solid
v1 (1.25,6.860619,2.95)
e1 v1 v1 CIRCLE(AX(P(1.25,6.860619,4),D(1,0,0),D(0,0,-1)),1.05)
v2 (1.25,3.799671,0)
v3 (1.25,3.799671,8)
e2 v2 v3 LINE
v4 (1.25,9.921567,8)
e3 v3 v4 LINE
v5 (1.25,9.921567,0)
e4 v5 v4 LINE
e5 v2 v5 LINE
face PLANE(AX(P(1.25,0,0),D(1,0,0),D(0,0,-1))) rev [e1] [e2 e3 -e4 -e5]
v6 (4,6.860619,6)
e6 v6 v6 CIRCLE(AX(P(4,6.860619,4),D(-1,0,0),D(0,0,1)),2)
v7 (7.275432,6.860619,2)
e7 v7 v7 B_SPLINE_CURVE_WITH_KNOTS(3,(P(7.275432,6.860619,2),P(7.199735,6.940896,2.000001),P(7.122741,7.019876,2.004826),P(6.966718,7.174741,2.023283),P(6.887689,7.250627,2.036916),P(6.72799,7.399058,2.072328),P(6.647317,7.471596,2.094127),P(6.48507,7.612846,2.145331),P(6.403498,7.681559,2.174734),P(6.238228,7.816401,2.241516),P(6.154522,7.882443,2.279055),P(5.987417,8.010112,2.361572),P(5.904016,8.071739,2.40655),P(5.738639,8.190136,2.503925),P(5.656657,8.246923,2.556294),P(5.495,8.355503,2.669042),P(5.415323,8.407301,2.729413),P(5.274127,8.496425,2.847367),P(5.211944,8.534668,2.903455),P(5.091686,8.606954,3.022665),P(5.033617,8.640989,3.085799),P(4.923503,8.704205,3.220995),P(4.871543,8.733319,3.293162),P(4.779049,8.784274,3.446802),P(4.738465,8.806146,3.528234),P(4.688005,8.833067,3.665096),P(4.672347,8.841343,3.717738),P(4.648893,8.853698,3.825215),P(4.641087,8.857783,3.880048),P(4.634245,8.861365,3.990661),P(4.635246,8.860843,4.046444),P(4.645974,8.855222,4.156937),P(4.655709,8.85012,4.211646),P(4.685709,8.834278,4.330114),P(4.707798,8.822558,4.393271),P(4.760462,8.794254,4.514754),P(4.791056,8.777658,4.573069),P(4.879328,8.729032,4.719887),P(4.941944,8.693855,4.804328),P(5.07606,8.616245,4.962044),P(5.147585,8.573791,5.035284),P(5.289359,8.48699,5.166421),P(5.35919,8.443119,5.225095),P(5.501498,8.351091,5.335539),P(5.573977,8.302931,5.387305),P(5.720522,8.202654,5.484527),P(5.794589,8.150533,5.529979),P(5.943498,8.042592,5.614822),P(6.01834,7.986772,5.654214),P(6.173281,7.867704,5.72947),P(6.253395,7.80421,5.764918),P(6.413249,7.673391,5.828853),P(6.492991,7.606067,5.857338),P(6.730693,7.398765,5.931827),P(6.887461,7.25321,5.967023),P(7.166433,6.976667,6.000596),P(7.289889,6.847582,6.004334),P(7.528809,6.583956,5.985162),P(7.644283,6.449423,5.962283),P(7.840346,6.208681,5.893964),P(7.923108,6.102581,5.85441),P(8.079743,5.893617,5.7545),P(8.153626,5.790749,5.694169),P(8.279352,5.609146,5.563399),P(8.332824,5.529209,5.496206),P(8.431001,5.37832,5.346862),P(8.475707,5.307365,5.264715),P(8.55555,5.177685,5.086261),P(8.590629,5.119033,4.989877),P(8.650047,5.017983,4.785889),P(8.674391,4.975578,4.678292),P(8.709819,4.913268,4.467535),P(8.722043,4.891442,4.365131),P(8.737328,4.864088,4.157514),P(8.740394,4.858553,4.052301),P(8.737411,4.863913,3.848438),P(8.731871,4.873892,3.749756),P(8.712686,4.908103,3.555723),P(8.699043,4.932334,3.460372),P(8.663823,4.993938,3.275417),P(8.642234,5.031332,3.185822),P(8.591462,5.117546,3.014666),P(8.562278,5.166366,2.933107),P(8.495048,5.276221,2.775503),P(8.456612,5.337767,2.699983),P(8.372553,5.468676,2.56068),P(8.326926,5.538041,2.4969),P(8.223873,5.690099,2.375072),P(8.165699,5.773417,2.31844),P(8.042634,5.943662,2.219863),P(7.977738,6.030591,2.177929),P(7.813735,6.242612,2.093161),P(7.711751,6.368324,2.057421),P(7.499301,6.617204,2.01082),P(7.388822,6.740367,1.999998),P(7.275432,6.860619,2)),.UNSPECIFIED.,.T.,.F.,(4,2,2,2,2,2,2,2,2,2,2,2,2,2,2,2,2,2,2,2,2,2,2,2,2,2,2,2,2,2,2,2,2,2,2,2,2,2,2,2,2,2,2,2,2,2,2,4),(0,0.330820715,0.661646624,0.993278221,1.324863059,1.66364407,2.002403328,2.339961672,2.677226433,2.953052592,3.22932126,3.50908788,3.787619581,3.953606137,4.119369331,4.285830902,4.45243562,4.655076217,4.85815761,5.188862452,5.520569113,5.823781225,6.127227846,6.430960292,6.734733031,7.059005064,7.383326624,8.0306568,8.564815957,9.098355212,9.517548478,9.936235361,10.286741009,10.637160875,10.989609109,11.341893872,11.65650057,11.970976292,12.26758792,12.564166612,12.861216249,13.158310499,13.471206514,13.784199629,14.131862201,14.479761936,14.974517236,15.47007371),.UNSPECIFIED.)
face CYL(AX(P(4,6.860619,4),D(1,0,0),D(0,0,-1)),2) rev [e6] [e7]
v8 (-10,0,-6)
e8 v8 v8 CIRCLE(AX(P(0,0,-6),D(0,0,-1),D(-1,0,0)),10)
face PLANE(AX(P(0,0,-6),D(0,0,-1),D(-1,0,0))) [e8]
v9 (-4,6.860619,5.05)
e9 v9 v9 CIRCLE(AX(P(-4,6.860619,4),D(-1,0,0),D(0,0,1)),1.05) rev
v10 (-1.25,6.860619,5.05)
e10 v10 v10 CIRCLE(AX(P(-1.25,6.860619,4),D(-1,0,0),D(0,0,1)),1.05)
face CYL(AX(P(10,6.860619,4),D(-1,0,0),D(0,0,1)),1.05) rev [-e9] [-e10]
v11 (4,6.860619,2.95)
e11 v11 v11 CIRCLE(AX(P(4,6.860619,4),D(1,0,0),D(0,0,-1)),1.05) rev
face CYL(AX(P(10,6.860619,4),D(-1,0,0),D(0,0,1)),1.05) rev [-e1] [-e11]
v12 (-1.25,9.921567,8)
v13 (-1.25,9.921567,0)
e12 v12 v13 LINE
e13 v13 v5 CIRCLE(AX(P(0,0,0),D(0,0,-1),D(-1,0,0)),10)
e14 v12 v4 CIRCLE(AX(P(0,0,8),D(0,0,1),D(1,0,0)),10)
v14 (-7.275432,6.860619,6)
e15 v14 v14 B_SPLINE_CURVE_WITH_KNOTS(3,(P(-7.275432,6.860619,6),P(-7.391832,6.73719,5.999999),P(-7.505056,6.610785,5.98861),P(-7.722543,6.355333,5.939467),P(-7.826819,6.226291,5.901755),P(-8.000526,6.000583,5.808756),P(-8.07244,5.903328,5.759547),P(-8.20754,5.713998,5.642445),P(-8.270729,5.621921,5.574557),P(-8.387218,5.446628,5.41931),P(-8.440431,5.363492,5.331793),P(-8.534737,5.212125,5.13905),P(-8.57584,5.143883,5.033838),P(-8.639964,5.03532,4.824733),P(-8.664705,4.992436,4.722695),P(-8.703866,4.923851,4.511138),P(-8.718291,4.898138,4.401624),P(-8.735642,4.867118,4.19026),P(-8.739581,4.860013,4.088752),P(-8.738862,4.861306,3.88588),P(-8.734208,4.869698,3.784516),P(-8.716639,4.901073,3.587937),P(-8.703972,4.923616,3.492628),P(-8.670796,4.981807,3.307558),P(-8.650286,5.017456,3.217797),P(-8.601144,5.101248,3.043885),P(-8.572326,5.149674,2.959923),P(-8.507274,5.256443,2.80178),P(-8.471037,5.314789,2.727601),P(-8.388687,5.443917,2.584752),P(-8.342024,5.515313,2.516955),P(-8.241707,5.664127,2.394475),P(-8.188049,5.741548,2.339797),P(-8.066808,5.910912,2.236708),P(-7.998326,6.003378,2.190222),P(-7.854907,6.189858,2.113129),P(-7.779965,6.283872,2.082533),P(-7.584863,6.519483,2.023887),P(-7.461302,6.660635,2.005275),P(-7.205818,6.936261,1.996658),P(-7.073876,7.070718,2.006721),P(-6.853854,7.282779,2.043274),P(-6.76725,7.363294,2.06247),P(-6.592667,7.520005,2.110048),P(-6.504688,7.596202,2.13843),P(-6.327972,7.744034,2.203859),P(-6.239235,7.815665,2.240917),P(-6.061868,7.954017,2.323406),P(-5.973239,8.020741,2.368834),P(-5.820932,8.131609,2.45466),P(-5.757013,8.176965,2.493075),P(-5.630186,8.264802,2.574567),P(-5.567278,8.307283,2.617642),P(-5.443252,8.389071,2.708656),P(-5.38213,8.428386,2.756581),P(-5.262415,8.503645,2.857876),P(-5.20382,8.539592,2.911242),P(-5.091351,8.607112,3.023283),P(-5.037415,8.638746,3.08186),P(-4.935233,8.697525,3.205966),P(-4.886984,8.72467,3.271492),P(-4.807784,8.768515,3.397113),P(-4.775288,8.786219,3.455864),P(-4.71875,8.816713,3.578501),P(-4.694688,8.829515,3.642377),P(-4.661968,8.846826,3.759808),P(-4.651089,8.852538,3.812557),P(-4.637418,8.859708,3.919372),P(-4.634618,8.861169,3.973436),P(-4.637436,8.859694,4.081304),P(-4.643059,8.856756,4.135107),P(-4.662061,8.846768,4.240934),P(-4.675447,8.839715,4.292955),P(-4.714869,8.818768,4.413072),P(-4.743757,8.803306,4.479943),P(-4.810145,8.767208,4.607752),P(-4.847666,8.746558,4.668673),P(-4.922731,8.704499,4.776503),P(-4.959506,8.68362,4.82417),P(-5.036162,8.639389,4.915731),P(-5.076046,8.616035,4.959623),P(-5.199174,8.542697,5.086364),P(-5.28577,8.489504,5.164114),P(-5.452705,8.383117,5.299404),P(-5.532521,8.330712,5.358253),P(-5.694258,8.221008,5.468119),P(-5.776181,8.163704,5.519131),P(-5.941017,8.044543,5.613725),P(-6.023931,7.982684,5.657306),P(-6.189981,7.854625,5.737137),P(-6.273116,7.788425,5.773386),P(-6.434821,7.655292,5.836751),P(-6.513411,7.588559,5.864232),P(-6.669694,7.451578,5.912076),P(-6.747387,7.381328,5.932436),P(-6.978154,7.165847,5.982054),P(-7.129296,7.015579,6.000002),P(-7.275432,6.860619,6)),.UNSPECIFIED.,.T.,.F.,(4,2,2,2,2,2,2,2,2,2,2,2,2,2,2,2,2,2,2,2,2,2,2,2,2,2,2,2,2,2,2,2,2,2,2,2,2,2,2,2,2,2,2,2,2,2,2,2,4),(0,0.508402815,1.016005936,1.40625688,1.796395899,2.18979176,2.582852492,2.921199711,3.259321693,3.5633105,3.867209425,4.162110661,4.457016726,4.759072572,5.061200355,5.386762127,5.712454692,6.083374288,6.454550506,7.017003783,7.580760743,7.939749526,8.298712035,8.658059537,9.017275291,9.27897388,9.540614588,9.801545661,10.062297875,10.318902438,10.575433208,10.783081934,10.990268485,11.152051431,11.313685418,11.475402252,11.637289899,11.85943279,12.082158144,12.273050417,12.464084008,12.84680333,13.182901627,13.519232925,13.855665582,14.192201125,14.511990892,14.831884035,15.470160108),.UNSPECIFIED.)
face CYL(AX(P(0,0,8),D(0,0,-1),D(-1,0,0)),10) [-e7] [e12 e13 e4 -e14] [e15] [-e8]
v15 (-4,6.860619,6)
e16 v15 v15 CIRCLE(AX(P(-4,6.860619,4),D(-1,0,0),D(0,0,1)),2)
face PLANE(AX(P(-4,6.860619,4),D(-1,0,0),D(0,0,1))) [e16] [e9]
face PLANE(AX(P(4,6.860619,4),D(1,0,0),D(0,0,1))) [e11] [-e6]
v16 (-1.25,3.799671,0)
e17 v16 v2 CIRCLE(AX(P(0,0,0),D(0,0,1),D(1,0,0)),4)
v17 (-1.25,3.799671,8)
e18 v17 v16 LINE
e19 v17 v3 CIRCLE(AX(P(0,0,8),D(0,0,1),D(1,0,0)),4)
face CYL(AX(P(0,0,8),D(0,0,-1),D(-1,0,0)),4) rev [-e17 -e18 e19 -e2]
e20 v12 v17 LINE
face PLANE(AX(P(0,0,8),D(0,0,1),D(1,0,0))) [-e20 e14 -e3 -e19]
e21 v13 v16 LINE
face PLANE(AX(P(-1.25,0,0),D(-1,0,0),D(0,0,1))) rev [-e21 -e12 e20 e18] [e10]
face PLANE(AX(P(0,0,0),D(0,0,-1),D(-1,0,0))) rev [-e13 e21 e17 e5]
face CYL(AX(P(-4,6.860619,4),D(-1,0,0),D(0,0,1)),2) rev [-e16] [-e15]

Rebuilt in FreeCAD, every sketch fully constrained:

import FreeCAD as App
import Part
import Sketcher
Q = App.Units.Quantity

doc = App.newDocument("Part")
body = doc.addObject("PartDesign::Body", "Body")

# Sketch on XY plane
sketch1 = body.newObject("Sketcher::SketchObject", "Sketch")
sketch1.AttachmentSupport = (doc.getObject("XY_Plane"), [""])
sketch1.MapMode = "FlatFace"
sketch1.addGeometry([
    Part.Circle(App.Vector(0, 0, 0), App.Vector(0, 0, 1), 10),
    Part.Circle(App.Vector(0, 0, 0), App.Vector(0, 0, 1), 4),
], False)
sketch1.addConstraint([
    Sketcher.Constraint("Coincident", 0, 3, -1, 1),
    Sketcher.Constraint("Coincident", 1, 3, -1, 1),
    Sketcher.Constraint("Diameter", 0, Q("20 mm")),
    Sketcher.Constraint("Diameter", 1, Q("8 mm")),
])
pad1 = body.newObject("PartDesign::Pad", "Pad")
pad1.Profile = sketch1
pad1.Length = 8

# Sketch on XY plane
sketch2 = body.newObject("Sketcher::SketchObject", "Sketch001")
sketch2.AttachmentSupport = (doc.getObject("XY_Plane"), [""])
sketch2.MapMode = "FlatFace"
sketch2.AttachmentOffset = App.Placement(App.Vector(0, 0, 8), App.Rotation())
sketch2.addGeometry([
    Part.LineSegment(App.Vector(-1.2, 11.1, 0), App.Vector(-1.2, 0, 0)),
    Part.LineSegment(App.Vector(-1.2, 0, 0), App.Vector(1.2, 0, 0)),
    Part.LineSegment(App.Vector(1.2, 0, 0), App.Vector(1.2, 11.1, 0)),
    Part.LineSegment(App.Vector(1.2, 11.1, 0), App.Vector(-1.2, 11.1, 0)),
], False)
sketch2.addConstraint([
    Sketcher.Constraint("Coincident", 0, 2, 1, 1),
    Sketcher.Constraint("Coincident", 1, 2, 2, 1),
    Sketcher.Constraint("Coincident", 2, 2, 3, 1),
    Sketcher.Constraint("Coincident", 3, 2, 0, 1),
    Sketcher.Constraint("Vertical", 0),
    Sketcher.Constraint("Horizontal", 1),
    Sketcher.Constraint("Vertical", 2),
    Sketcher.Constraint("Horizontal", 3),
    Sketcher.Constraint("Symmetric", 0, 2, 1, 2, -1, 1),
    Sketcher.Constraint("DistanceX", 1, 1, 1, 2, Q("2.5 mm")),
    Sketcher.Constraint("DistanceY", 0, 2, 0, 1, Q("11.075472 mm")),
])
pocket1 = body.newObject("PartDesign::Pocket", "Pocket")
pocket1.Profile = sketch2
pocket1.Type = "ThroughAll"

# Sketch on YZ plane
sketch3 = body.newObject("Sketcher::SketchObject", "Sketch002")
sketch3.AttachmentSupport = (doc.getObject("YZ_Plane"), [""])
sketch3.MapMode = "FlatFace"
sketch3.AttachmentOffset = App.Placement(App.Vector(0, 0, -10), App.Rotation())
sketch3.addGeometry(Part.Circle(App.Vector(6.9, 4, 0), App.Vector(0, 0, 1), 1.1), False)
sketch3.addConstraint([
    Sketcher.Constraint("Diameter", 0, Q("2.1 mm")),
    Sketcher.Constraint("DistanceY", -1, 1, 0, 3, Q("4 mm")),
    Sketcher.Constraint("DistanceX", -1, 1, 0, 3, Q("6.860619 mm")),
])
pocket2 = body.newObject("PartDesign::Pocket", "Pocket001")
pocket2.Profile = sketch3
pocket2.Type = "ThroughAll"
pocket2.Reversed = True

# Sketch on YZ plane
sketch4 = body.newObject("Sketcher::SketchObject", "Sketch003")
sketch4.AttachmentSupport = (doc.getObject("YZ_Plane"), [""])
sketch4.MapMode = "FlatFace"
sketch4.AttachmentOffset = App.Placement(App.Vector(0, 0, -10), App.Rotation())
sketch4.addGeometry(Part.Circle(App.Vector(6.9, 4, 0), App.Vector(0, 0, 1), 2), False)
sketch4.addConstraint([
    Sketcher.Constraint("Diameter", 0, Q("4 mm")),
    Sketcher.Constraint("DistanceY", -1, 1, 0, 3, Q("4 mm")),
    Sketcher.Constraint("DistanceX", -1, 1, 0, 3, Q("6.860619 mm")),
])
pocket3 = body.newObject("PartDesign::Pocket", "Pocket002")
pocket3.Profile = sketch4
pocket3.Length = 6
pocket3.Reversed = True
doc.recompute()

mirrored = body.newObject("PartDesign::Mirrored", "Mirrored")
mirrored.Originals = [pocket3]
mirrored.MirrorPlane = (doc.getObject("YZ_Plane"), [""])
body.Tip = mirrored

# Sketch on XY plane
sketch5 = body.newObject("Sketcher::SketchObject", "Sketch004")
sketch5.AttachmentSupport = (doc.getObject("XY_Plane"), [""])
sketch5.MapMode = "FlatFace"
sketch5.AttachmentOffset = App.Placement(App.Vector(0, 0, -6), App.Rotation())
sketch5.addGeometry(Part.Circle(App.Vector(0, 0, 0), App.Vector(0, 0, 1), 10), False)
sketch5.addConstraint([
    Sketcher.Constraint("Coincident", 0, 3, -1, 1),
    Sketcher.Constraint("Diameter", 0, Q("20 mm")),
])
pad2 = body.newObject("PartDesign::Pad", "Pad001")
pad2.Profile = sketch5
pad2.Length = 6

doc.recompute()
